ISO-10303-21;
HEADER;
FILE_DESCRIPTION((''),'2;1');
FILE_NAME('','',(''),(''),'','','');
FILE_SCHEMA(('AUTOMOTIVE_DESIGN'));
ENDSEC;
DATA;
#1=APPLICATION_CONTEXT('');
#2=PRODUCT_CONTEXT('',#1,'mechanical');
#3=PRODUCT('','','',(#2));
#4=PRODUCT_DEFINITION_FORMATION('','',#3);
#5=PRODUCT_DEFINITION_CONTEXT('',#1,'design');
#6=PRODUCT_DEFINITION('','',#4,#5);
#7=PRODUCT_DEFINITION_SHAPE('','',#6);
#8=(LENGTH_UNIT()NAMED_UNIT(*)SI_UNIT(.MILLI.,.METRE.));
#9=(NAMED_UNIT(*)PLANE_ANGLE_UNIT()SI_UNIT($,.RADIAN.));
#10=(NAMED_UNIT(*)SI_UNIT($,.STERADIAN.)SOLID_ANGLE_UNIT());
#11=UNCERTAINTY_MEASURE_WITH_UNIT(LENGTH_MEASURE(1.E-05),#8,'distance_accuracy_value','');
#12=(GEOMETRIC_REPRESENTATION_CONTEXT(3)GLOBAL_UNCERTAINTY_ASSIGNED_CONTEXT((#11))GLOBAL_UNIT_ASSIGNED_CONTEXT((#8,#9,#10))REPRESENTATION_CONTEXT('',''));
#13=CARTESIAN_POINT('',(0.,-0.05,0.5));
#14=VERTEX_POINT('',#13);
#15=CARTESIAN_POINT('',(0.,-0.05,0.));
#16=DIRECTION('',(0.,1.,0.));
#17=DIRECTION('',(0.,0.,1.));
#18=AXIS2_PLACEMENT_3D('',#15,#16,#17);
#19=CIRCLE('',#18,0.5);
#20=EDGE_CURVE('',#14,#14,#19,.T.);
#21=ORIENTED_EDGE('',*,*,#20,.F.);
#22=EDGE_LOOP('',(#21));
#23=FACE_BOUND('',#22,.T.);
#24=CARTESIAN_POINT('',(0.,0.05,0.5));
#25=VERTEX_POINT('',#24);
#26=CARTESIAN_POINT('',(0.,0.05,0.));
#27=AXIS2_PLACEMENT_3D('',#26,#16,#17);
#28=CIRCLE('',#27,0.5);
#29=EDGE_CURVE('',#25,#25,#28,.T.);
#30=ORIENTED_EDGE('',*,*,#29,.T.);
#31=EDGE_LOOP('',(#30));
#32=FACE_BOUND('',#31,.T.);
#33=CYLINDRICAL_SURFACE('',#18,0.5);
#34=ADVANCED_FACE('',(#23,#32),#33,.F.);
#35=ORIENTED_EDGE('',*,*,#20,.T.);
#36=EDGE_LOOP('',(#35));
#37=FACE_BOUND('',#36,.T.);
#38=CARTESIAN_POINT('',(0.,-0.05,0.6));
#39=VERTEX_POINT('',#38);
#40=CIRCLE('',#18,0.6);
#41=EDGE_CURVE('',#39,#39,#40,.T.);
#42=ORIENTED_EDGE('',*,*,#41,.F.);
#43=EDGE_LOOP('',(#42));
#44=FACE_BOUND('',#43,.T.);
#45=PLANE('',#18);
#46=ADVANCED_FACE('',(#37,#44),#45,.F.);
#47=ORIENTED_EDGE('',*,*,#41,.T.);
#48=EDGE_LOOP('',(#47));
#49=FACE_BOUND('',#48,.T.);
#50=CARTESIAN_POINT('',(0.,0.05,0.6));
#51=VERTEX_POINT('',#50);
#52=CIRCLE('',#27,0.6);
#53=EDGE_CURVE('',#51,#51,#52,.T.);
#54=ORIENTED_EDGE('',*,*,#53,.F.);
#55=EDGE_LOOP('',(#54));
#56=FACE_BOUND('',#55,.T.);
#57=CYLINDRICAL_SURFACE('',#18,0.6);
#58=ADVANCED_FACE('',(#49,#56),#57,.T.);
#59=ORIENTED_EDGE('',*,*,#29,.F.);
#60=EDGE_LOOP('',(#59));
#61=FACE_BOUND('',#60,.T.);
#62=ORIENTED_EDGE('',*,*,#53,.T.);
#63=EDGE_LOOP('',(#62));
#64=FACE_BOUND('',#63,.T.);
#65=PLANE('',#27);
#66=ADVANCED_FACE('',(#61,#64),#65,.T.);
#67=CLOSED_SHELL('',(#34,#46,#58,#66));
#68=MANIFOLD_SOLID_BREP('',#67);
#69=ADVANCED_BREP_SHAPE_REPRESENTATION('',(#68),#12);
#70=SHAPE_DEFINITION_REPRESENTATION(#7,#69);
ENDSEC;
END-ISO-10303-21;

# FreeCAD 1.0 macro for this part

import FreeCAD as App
import Part
import Sketcher
from FreeCAD import Vector

doc = App.newDocument("Part")
body = doc.addObject("PartDesign::Body", "Body")

# Sketch on XZ plane
sketch1 = doc.addObject("Sketcher::SketchObject", "Sketch")
body.addObject(sketch1)
sketch1.AttachmentSupport = (doc.XZ_Plane, [""])
sketch1.MapMode = "FlatFace"
sketch1.addGeometry([
    Part.Circle(Vector(0, 0, 0), Vector(0, 0, 1), 0.6),
    Part.Circle(Vector(0, 0, 0), Vector(0, 0, 1), 0.5),
], False)
sketch1.addConstraint([
    Sketcher.Constraint("Coincident", 0, 3, -1, 1),
    Sketcher.Constraint("Coincident", 1, 3, -1, 1),
    Sketcher.Constraint("Diameter", 1, 1.0),
    Sketcher.Constraint("Diameter", 0, 1.2),
])
pad1 = doc.addObject("PartDesign::Pad", "Pad")
body.addObject(pad1)
pad1.Profile = sketch1
pad1.Type = "TwoLengths"
pad1.Length = 0.05
pad1.Length2 = 0.05
pad1.Reversed = True

doc.recompute()
